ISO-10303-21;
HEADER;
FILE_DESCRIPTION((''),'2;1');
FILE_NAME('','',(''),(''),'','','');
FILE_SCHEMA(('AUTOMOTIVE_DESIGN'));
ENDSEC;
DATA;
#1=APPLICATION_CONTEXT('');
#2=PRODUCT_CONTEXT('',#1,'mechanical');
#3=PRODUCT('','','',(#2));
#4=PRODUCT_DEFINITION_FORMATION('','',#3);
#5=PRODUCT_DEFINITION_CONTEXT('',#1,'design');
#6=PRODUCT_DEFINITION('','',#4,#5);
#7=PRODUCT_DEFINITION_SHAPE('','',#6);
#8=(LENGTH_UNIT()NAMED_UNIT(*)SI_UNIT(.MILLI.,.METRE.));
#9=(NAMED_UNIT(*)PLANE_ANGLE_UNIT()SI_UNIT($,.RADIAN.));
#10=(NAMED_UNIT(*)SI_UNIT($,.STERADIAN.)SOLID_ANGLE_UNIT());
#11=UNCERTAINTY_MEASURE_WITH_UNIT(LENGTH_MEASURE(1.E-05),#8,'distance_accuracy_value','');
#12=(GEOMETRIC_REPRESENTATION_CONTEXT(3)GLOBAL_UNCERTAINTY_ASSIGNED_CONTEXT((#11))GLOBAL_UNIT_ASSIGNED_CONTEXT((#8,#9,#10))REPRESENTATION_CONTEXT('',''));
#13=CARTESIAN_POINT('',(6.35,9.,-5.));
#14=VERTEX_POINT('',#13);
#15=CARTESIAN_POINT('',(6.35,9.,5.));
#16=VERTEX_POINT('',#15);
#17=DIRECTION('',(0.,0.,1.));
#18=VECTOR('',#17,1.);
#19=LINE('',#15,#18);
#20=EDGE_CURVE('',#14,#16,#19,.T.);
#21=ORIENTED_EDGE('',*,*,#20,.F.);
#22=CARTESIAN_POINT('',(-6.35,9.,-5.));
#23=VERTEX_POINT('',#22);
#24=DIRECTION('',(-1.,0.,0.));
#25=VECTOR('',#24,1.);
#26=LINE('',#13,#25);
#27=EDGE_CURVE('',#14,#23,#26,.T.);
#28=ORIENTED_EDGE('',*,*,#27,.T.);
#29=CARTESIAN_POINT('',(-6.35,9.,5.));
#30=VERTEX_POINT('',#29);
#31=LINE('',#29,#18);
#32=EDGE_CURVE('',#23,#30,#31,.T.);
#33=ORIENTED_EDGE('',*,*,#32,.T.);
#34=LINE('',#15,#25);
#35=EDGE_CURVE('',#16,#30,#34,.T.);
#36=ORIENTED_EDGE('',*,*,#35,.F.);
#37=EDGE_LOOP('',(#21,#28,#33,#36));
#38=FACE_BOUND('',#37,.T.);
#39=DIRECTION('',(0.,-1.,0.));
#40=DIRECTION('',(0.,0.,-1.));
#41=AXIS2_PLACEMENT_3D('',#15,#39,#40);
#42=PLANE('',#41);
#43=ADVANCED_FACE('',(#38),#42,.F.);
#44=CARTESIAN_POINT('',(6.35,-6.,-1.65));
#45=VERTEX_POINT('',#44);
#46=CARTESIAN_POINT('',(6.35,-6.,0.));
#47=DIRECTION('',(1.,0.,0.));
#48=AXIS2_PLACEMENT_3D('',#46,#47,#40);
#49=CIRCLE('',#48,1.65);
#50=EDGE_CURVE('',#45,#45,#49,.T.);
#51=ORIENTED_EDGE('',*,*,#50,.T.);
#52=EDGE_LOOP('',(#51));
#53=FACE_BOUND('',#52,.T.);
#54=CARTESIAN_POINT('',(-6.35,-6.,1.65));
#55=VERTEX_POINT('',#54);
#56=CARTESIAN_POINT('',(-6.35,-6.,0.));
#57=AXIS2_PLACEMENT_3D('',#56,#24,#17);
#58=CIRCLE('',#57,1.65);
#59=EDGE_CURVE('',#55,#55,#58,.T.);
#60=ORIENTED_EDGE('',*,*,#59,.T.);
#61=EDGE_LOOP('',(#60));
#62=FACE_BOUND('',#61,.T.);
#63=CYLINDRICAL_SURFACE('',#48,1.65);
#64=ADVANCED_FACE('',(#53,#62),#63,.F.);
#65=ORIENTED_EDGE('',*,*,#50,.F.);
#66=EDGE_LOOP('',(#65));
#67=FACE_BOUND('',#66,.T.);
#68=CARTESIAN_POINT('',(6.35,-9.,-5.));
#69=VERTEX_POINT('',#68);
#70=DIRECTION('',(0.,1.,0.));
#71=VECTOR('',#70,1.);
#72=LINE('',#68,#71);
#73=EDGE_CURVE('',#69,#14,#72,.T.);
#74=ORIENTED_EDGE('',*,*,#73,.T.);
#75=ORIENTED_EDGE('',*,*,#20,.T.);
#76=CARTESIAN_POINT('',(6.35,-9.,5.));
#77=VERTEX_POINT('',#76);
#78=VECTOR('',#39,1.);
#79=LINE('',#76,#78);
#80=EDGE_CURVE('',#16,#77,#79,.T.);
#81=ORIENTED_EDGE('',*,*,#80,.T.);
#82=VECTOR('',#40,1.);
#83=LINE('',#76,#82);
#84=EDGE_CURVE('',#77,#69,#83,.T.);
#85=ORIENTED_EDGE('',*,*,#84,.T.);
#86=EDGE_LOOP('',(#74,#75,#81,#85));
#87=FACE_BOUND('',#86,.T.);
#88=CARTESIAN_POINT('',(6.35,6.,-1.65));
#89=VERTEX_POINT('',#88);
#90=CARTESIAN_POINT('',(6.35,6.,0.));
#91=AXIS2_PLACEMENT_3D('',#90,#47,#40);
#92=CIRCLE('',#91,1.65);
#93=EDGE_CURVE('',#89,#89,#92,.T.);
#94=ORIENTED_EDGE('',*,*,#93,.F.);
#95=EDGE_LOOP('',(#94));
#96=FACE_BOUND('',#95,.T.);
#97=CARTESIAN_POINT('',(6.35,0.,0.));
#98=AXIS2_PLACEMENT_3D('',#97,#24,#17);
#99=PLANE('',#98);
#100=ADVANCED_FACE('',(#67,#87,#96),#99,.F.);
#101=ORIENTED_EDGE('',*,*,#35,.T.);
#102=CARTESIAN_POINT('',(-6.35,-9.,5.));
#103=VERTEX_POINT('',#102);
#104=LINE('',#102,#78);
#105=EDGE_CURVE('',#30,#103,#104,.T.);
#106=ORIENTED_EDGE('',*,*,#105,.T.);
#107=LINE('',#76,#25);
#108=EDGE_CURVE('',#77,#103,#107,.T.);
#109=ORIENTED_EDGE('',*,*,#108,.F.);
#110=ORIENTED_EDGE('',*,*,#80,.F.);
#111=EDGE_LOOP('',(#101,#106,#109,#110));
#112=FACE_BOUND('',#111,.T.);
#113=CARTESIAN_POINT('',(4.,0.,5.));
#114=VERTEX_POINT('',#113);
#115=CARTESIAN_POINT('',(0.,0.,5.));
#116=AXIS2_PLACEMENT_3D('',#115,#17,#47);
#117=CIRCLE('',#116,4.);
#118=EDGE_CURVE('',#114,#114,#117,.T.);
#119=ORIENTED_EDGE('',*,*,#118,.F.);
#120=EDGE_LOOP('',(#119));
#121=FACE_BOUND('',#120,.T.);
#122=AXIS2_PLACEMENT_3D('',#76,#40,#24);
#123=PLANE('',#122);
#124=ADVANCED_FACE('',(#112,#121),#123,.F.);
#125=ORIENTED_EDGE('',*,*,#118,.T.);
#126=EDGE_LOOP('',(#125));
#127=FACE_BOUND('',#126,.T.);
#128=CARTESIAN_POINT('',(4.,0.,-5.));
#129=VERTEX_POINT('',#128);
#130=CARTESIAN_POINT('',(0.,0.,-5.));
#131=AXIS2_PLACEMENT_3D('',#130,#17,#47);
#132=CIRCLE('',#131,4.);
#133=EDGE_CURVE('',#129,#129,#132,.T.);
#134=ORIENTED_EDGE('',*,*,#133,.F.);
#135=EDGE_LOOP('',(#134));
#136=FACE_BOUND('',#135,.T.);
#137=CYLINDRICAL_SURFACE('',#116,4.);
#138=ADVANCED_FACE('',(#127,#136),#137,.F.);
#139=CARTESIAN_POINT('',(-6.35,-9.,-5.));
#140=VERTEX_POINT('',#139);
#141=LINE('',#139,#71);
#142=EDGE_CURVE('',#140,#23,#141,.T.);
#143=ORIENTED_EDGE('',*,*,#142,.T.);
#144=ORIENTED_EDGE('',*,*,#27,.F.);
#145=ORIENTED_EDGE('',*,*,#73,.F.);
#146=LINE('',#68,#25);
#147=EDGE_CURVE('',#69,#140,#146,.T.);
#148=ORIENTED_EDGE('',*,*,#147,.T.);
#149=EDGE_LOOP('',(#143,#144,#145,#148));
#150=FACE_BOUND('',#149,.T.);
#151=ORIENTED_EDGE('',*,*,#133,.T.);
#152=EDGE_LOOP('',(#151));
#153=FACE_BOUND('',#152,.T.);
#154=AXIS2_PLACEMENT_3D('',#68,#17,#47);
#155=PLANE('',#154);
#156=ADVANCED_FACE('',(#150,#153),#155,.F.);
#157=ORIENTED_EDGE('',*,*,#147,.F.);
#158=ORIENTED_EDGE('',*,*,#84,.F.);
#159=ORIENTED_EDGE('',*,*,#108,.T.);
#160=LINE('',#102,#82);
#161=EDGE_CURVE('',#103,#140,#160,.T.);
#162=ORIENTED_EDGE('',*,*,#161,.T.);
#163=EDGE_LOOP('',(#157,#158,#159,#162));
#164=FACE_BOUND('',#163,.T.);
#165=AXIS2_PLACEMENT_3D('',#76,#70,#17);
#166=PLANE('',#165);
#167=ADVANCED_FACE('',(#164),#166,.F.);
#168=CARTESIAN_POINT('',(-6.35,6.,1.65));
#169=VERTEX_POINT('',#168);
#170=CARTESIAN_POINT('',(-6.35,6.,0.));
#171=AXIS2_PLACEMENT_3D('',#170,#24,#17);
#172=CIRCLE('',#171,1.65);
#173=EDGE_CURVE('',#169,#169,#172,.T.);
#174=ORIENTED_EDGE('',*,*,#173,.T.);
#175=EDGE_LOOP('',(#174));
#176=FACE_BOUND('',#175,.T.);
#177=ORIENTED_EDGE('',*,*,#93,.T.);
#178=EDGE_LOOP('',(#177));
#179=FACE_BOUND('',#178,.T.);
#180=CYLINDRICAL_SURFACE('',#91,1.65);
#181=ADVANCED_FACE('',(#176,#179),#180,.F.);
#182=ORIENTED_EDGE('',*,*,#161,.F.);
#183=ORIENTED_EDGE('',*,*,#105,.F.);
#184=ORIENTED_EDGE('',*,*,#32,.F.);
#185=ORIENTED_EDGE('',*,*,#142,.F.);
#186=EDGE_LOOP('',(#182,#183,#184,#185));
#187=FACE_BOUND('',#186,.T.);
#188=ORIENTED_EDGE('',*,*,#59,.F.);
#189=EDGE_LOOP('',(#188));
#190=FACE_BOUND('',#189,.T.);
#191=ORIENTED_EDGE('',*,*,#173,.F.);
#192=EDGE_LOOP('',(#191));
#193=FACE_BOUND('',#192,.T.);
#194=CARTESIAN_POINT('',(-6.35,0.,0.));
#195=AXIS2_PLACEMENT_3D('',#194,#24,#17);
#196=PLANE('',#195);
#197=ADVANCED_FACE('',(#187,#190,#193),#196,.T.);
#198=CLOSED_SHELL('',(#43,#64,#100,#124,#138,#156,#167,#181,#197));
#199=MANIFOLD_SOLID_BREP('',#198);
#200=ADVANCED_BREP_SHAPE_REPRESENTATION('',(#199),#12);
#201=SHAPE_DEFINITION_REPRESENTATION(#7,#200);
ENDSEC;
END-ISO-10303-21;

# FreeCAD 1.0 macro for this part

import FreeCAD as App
import Part
import Sketcher

V = App.Vector

doc = App.newDocument("Part")
body = doc.addObject("PartDesign::Body", "Body")

sketch1 = body.newObject("Sketcher::SketchObject", "Sketch")
sketch1.AttachmentSupport = (doc.getObject("YZ_Plane"), [""])
sketch1.MapMode = "FlatFace"
sketch1.addGeometry([
    Part.LineSegment(V(9, 5, 0), V(-9, 5, 0)),
    Part.LineSegment(V(-9, 5, 0), V(-9, -5, 0)),
    Part.LineSegment(V(-9, -5, 0), V(9, -5, 0)),
    Part.LineSegment(V(9, -5, 0), V(9, 5, 0)),
], False)
sketch1.addConstraint([
    Sketcher.Constraint("Coincident", 0, 2, 1, 1),
    Sketcher.Constraint("Coincident", 1, 2, 2, 1),
    Sketcher.Constraint("Coincident", 2, 2, 3, 1),
    Sketcher.Constraint("Coincident", 3, 2, 0, 1),
    Sketcher.Constraint("Horizontal", 0),
    Sketcher.Constraint("Vertical", 1),
    Sketcher.Constraint("Horizontal", 2),
    Sketcher.Constraint("Vertical", 3),
    Sketcher.Constraint("Symmetric", 0, 2, 2, 2, -1, 1),
    Sketcher.Constraint("DistanceX", 0, 2, 0, 1, 18.0),
    Sketcher.Constraint("DistanceY", 1, 2, 1, 1, 10.0),
])
pad1 = body.newObject("PartDesign::Pad", "Pad")
pad1.Profile = sketch1
pad1.Length = 12.7
pad1.Midplane = True

sketch2 = body.newObject("Sketcher::SketchObject", "Sketch001")
sketch2.AttachmentSupport = (doc.getObject("YZ_Plane"), [""])
sketch2.MapMode = "FlatFace"
sketch2.AttachmentOffset = App.Placement(V(0, 0, 6.35), App.Rotation())
sketch2.addGeometry([
    Part.Circle(V(6, 0, 0), V(0, 0, 1), 1.65),
    Part.Circle(V(-6, 0, 0), V(0, 0, 1), 1.65),
], False)
sketch2.addConstraint([
    Sketcher.Constraint("Equal", 0, 1),
    Sketcher.Constraint("Symmetric", 0, 3, 1, 3, -1, 1),
    Sketcher.Constraint("PointOnObject", 0, 3, -1),
    Sketcher.Constraint("Diameter", 0, 3.3),
    Sketcher.Constraint("DistanceX", -1, 1, 0, 3, 6.0),
])
doc.recompute()
hole = body.newObject("PartDesign::Hole", "Hole")
hole.Profile = sketch2
hole.ThreadType = "None"
hole.Diameter = 3.3
hole.DepthType = "ThroughAll"

sketch3 = body.newObject("Sketcher::SketchObject", "Sketch002")
sketch3.AttachmentSupport = (doc.getObject("XY_Plane"), [""])
sketch3.MapMode = "FlatFace"
sketch3.AttachmentOffset = App.Placement(V(0, 0, 5), App.Rotation())
sketch3.addGeometry(Part.Circle(V(0, 0, 0), V(0, 0, 1), 4), False)
sketch3.addConstraint([
    Sketcher.Constraint("Coincident", 0, 3, -1, 1),
    Sketcher.Constraint("Diameter", 0, 8.0),
])
doc.recompute()
hole2 = body.newObject("PartDesign::Hole", "Hole001")
hole2.Profile = sketch3
hole2.ThreadType = "None"
hole2.Diameter = 8
hole2.DepthType = "ThroughAll"

doc.recompute()
